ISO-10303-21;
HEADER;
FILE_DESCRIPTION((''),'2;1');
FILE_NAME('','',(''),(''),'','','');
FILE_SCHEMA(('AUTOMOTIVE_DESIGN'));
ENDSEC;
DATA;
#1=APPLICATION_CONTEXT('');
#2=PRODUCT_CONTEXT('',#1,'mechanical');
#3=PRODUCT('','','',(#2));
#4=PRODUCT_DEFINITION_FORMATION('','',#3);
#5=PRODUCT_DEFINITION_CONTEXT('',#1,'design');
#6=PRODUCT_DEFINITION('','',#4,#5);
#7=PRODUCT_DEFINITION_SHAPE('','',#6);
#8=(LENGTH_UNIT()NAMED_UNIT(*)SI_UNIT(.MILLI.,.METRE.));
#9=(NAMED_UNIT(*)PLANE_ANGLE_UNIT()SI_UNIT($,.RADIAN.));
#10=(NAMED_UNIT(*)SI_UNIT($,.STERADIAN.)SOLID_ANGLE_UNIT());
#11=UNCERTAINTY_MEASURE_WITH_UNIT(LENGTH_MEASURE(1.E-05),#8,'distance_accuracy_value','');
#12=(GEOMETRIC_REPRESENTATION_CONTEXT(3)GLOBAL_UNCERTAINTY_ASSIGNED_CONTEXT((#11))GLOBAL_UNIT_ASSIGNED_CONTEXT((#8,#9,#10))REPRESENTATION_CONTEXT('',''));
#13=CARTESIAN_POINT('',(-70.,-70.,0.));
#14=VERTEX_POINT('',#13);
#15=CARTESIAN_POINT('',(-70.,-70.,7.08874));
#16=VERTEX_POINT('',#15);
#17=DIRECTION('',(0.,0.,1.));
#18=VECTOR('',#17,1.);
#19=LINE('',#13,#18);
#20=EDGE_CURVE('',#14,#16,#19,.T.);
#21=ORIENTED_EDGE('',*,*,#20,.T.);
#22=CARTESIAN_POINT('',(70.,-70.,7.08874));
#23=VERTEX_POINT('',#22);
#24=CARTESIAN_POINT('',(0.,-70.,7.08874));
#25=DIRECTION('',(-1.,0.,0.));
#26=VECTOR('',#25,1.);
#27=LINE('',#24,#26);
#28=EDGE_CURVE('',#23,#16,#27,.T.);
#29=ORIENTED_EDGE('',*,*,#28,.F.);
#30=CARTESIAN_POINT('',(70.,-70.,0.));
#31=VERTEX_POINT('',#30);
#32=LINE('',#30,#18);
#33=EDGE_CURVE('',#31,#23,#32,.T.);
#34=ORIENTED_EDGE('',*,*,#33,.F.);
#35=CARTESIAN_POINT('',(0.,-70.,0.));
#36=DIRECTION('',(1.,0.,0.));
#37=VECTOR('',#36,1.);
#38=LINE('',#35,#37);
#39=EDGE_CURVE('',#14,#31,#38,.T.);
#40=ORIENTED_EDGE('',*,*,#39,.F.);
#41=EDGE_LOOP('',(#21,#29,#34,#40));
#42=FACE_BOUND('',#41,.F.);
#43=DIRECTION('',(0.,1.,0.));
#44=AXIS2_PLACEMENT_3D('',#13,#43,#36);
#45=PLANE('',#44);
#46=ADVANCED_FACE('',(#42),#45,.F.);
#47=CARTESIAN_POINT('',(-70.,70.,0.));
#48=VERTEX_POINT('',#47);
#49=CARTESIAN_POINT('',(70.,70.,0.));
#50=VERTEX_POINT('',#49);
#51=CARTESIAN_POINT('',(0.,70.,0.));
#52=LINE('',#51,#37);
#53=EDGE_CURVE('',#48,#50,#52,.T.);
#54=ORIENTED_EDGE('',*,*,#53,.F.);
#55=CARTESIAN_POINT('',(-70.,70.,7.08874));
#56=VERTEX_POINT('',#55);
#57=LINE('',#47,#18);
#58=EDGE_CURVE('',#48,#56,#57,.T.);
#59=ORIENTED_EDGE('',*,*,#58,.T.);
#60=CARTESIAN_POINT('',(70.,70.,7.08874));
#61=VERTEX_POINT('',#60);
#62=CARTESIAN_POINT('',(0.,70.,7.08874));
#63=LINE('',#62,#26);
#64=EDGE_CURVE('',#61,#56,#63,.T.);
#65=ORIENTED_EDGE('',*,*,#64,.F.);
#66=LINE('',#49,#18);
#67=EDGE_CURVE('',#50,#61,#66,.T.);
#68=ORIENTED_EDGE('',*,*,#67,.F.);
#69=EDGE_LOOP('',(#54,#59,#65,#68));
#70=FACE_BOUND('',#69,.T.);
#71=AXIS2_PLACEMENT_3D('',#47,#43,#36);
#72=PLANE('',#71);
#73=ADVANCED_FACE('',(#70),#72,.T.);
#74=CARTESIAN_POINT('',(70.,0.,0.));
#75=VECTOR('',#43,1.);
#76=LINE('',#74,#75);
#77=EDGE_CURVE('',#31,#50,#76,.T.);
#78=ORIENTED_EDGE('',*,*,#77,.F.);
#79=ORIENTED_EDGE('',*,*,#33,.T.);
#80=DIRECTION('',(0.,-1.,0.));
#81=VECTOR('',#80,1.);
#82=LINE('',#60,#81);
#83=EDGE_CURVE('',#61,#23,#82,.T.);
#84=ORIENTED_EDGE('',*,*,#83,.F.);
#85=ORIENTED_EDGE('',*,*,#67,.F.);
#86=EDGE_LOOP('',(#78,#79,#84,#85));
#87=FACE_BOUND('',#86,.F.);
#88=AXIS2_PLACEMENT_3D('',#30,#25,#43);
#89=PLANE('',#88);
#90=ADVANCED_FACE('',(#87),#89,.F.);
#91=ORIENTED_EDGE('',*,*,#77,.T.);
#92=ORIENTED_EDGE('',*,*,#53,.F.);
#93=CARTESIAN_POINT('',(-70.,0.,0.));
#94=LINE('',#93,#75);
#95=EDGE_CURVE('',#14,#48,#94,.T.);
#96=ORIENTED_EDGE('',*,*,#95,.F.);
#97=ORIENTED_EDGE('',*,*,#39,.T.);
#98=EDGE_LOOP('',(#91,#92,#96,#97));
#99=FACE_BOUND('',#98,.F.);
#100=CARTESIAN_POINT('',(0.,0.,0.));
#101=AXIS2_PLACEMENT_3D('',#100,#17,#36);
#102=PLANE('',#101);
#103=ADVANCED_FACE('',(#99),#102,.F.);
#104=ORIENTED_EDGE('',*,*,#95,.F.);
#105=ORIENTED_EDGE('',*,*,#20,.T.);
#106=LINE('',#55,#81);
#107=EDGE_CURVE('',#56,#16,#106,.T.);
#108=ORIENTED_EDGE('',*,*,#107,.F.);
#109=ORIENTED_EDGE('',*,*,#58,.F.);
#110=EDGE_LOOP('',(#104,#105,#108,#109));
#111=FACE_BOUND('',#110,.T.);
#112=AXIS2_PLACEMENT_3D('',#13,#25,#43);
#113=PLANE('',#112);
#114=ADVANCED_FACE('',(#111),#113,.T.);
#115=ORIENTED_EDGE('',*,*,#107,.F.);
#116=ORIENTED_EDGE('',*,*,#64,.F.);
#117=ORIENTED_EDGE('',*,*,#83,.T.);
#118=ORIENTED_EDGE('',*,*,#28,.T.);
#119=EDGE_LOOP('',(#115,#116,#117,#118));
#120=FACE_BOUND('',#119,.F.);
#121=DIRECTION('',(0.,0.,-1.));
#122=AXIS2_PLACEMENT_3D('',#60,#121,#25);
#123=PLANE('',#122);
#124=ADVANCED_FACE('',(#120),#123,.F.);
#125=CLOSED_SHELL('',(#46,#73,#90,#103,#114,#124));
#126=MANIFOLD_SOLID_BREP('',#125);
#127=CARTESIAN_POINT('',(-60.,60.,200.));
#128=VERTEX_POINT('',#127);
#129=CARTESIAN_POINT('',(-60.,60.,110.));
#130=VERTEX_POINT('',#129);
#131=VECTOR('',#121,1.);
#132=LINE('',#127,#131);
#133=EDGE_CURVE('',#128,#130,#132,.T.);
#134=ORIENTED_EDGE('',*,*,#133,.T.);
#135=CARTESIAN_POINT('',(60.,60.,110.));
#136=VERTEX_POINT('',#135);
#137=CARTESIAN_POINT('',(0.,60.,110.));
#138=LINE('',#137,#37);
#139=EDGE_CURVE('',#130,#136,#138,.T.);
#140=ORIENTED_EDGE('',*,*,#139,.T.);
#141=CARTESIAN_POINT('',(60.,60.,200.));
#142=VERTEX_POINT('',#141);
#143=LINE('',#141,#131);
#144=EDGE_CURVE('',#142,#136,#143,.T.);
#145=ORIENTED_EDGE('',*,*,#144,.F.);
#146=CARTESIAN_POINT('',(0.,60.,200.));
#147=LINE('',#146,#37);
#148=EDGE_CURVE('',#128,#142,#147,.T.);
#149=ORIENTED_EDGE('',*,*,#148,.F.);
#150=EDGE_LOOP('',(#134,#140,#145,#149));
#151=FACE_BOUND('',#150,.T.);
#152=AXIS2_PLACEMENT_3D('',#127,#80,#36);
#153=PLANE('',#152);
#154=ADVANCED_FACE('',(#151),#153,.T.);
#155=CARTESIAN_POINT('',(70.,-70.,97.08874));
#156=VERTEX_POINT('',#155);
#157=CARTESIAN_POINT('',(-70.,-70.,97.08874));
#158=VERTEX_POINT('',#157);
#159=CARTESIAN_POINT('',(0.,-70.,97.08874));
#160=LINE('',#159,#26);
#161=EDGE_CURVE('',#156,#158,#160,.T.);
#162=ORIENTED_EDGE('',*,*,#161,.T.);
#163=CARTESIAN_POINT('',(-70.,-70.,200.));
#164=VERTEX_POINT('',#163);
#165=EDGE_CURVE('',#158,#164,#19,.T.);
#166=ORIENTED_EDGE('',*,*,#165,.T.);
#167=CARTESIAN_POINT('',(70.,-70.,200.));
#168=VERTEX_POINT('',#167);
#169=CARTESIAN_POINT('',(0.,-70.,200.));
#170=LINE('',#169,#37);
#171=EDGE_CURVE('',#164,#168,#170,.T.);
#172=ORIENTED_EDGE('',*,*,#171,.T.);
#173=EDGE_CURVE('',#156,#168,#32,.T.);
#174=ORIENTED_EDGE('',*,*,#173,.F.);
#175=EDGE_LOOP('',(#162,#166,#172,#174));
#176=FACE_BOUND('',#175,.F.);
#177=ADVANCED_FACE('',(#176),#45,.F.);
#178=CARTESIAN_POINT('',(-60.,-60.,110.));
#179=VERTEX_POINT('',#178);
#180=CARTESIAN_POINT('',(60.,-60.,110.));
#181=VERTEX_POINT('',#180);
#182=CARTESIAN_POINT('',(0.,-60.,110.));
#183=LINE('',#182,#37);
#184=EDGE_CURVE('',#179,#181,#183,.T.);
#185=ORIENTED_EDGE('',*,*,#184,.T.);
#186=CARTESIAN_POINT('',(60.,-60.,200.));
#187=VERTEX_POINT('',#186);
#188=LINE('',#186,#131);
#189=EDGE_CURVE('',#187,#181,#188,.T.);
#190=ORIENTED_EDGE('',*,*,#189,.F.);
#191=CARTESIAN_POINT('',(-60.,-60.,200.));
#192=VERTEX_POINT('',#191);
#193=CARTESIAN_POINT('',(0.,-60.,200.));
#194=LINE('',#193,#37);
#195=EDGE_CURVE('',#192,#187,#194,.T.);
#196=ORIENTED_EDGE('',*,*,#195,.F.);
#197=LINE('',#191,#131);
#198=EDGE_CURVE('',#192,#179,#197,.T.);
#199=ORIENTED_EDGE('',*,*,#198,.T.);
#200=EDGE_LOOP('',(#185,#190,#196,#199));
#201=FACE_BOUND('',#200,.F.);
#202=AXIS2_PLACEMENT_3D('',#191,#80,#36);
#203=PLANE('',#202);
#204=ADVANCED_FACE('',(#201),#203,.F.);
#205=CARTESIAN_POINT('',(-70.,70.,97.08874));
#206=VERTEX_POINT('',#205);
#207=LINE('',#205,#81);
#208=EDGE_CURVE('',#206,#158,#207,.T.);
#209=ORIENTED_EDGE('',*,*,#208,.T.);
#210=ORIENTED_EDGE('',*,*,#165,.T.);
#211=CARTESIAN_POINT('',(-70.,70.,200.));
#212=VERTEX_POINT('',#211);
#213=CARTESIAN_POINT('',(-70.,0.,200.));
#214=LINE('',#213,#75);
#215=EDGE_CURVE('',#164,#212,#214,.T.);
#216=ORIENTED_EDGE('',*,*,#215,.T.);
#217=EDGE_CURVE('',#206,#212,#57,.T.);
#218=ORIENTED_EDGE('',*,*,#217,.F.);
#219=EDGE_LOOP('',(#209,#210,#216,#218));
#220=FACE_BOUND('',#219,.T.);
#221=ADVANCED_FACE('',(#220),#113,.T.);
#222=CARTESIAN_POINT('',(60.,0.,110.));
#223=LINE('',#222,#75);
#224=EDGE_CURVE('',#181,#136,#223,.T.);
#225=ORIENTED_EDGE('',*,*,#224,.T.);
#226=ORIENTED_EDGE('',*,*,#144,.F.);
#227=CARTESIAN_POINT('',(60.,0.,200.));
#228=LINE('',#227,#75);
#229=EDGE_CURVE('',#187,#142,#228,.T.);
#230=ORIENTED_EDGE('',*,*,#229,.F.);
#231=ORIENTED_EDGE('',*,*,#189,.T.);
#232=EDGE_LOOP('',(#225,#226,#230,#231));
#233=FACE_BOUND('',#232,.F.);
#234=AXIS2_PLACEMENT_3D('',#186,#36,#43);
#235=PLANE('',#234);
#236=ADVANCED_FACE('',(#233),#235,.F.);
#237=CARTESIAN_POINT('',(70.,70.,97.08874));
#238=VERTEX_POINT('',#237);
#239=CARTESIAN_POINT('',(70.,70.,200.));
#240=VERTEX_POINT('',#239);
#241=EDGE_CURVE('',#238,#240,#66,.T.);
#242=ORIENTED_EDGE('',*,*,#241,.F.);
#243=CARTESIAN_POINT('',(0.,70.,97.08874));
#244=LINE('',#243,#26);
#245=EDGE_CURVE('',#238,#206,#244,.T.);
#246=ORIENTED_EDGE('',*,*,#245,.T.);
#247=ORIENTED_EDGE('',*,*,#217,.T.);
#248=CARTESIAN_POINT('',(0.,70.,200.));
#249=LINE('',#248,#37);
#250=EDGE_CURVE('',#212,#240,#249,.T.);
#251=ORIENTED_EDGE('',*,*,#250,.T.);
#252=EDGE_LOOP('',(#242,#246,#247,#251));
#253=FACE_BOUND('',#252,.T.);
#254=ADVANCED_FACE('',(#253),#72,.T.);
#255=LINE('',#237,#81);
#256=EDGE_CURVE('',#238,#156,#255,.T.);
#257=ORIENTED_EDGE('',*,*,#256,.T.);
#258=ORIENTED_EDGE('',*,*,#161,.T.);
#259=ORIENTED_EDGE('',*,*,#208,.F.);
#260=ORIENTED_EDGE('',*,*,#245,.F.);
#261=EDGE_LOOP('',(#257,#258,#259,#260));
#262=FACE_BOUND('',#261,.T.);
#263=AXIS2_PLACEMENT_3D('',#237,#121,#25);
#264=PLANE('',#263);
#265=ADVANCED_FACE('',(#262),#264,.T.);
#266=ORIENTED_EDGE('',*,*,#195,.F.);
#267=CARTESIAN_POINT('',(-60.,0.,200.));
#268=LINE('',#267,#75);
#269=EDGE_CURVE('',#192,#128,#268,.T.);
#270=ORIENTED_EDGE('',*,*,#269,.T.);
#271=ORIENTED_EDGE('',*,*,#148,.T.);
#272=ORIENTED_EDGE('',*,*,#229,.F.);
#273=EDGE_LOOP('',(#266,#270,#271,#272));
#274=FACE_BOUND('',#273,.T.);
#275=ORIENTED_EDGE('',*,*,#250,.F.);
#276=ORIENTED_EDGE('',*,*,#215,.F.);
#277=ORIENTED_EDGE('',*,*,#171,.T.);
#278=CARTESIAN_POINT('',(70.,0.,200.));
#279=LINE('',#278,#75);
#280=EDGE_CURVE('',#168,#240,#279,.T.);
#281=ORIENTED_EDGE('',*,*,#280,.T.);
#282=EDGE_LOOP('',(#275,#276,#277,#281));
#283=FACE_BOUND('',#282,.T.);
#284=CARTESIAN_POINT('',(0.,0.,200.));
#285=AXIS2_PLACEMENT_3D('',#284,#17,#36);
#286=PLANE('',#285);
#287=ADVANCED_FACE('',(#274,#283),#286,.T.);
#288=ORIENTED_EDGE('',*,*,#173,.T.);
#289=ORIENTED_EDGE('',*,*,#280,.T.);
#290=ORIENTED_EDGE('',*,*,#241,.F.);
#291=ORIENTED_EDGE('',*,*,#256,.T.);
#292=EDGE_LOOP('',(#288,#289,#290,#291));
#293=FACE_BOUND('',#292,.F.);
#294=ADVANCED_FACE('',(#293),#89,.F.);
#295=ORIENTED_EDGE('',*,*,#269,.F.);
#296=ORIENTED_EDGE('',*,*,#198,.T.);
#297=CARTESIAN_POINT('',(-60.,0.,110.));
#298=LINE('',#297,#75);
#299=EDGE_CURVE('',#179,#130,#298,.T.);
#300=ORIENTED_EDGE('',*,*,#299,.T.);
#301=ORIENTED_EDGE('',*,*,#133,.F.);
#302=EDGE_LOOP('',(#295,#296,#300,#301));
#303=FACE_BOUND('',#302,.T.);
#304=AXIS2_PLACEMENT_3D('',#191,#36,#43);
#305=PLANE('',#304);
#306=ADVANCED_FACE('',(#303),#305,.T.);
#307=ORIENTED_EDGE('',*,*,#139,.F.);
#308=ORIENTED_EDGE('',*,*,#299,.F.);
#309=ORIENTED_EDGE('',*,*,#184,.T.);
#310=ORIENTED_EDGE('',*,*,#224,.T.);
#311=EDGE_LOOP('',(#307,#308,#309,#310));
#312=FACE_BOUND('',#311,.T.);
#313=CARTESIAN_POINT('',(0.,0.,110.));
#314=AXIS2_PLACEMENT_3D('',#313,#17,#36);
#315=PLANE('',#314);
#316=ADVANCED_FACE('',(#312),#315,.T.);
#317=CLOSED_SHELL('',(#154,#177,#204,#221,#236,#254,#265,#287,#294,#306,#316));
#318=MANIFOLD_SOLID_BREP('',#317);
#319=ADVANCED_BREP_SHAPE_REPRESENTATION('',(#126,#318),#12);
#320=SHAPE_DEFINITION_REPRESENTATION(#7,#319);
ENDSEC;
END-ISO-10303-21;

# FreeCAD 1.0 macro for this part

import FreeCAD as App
import Part
import Sketcher


def add_polygon(sketch, points):
    """Adds a closed chain of lines whose ends are joined by coincident constraints."""
    first, n = sketch.GeometryCount, len(points)
    for a, b in zip(points, points[1:] + points[:1]):
        sketch.addGeometry(Part.LineSegment(App.Vector(*a, 0), App.Vector(*b, 0)), False)
    for i in range(n):
        sketch.addConstraint(Sketcher.Constraint("Coincident", first + i, 2, first + (i + 1) % n, 1))

doc = App.newDocument("Part")
body = doc.addObject("PartDesign::Body", "Body")
body.AllowCompound = True

sketch1 = body.newObject("Sketcher::SketchObject", "Sketch")
sketch1.AttachmentSupport = (doc.getObject("XY_Plane"), [""])
sketch1.MapMode = "FlatFace"
add_polygon(sketch1, [(-70, 70), (-70, -70), (70, -70), (70, 70)])
sketch1.addConstraint(Sketcher.Constraint("Vertical", 0))
sketch1.addConstraint(Sketcher.Constraint("Horizontal", 1))
sketch1.addConstraint(Sketcher.Constraint("Vertical", 2))
sketch1.addConstraint(Sketcher.Constraint("Horizontal", 3))
sketch1.addConstraint(Sketcher.Constraint("Symmetric", 0, 2, 2, 2, -1, 1))
sketch1.addConstraint(Sketcher.Constraint("Equal", 3, 0))
sketch1.addConstraint(Sketcher.Constraint("DistanceX", 1, 1, 1, 2, 140.0))
pad1 = body.newObject("PartDesign::Pad", "Pad")
pad1.Profile = sketch1
pad1.Length = 200

sketch2 = body.newObject("Sketcher::SketchObject", "Sketch001")
sketch2.AttachmentSupport = (doc.getObject("XZ_Plane"), [""])
sketch2.MapMode = "FlatFace"
sketch2.AttachmentOffset = App.Placement(App.Vector(0, 0, -70), App.Rotation())
add_polygon(sketch2, [(70, 97), (70, 7), (-70, 7), (-70, 97)])
sketch2.addConstraint(Sketcher.Constraint("Vertical", 0))
sketch2.addConstraint(Sketcher.Constraint("Horizontal", 1))
sketch2.addConstraint(Sketcher.Constraint("Vertical", 2))
sketch2.addConstraint(Sketcher.Constraint("Horizontal", 3))
sketch2.addConstraint(Sketcher.Constraint("DistanceX", 1, 2, 1, 1, 140.0))
sketch2.addConstraint(Sketcher.Constraint("DistanceY", 0, 2, 0, 1, 90.0))
sketch2.addConstraint(Sketcher.Constraint("DistanceX", -1, 1, 0, 2, 70.0))
sketch2.addConstraint(Sketcher.Constraint("DistanceY", -1, 1, 0, 2, 7.08874))
pocket1 = body.newObject("PartDesign::Pocket", "Pocket")
pocket1.Profile = sketch2
pocket1.Length = 190
pocket1.Reversed = True

sketch3 = body.newObject("Sketcher::SketchObject", "Sketch002")
sketch3.AttachmentSupport = (doc.getObject("XY_Plane"), [""])
sketch3.MapMode = "FlatFace"
sketch3.AttachmentOffset = App.Placement(App.Vector(0, 0, 200), App.Rotation())
add_polygon(sketch3, [(-60, 60), (-60, -60), (60, -60), (60, 60)])
sketch3.addConstraint(Sketcher.Constraint("Vertical", 0))
sketch3.addConstraint(Sketcher.Constraint("Horizontal", 1))
sketch3.addConstraint(Sketcher.Constraint("Vertical", 2))
sketch3.addConstraint(Sketcher.Constraint("Horizontal", 3))
sketch3.addConstraint(Sketcher.Constraint("Symmetric", 0, 2, 2, 2, -1, 1))
sketch3.addConstraint(Sketcher.Constraint("Equal", 3, 0))
sketch3.addConstraint(Sketcher.Constraint("DistanceX", 1, 1, 1, 2, 120.0))
pocket2 = body.newObject("PartDesign::Pocket", "Pocket001")
pocket2.Profile = sketch3
pocket2.Length = 90

doc.recompute()
